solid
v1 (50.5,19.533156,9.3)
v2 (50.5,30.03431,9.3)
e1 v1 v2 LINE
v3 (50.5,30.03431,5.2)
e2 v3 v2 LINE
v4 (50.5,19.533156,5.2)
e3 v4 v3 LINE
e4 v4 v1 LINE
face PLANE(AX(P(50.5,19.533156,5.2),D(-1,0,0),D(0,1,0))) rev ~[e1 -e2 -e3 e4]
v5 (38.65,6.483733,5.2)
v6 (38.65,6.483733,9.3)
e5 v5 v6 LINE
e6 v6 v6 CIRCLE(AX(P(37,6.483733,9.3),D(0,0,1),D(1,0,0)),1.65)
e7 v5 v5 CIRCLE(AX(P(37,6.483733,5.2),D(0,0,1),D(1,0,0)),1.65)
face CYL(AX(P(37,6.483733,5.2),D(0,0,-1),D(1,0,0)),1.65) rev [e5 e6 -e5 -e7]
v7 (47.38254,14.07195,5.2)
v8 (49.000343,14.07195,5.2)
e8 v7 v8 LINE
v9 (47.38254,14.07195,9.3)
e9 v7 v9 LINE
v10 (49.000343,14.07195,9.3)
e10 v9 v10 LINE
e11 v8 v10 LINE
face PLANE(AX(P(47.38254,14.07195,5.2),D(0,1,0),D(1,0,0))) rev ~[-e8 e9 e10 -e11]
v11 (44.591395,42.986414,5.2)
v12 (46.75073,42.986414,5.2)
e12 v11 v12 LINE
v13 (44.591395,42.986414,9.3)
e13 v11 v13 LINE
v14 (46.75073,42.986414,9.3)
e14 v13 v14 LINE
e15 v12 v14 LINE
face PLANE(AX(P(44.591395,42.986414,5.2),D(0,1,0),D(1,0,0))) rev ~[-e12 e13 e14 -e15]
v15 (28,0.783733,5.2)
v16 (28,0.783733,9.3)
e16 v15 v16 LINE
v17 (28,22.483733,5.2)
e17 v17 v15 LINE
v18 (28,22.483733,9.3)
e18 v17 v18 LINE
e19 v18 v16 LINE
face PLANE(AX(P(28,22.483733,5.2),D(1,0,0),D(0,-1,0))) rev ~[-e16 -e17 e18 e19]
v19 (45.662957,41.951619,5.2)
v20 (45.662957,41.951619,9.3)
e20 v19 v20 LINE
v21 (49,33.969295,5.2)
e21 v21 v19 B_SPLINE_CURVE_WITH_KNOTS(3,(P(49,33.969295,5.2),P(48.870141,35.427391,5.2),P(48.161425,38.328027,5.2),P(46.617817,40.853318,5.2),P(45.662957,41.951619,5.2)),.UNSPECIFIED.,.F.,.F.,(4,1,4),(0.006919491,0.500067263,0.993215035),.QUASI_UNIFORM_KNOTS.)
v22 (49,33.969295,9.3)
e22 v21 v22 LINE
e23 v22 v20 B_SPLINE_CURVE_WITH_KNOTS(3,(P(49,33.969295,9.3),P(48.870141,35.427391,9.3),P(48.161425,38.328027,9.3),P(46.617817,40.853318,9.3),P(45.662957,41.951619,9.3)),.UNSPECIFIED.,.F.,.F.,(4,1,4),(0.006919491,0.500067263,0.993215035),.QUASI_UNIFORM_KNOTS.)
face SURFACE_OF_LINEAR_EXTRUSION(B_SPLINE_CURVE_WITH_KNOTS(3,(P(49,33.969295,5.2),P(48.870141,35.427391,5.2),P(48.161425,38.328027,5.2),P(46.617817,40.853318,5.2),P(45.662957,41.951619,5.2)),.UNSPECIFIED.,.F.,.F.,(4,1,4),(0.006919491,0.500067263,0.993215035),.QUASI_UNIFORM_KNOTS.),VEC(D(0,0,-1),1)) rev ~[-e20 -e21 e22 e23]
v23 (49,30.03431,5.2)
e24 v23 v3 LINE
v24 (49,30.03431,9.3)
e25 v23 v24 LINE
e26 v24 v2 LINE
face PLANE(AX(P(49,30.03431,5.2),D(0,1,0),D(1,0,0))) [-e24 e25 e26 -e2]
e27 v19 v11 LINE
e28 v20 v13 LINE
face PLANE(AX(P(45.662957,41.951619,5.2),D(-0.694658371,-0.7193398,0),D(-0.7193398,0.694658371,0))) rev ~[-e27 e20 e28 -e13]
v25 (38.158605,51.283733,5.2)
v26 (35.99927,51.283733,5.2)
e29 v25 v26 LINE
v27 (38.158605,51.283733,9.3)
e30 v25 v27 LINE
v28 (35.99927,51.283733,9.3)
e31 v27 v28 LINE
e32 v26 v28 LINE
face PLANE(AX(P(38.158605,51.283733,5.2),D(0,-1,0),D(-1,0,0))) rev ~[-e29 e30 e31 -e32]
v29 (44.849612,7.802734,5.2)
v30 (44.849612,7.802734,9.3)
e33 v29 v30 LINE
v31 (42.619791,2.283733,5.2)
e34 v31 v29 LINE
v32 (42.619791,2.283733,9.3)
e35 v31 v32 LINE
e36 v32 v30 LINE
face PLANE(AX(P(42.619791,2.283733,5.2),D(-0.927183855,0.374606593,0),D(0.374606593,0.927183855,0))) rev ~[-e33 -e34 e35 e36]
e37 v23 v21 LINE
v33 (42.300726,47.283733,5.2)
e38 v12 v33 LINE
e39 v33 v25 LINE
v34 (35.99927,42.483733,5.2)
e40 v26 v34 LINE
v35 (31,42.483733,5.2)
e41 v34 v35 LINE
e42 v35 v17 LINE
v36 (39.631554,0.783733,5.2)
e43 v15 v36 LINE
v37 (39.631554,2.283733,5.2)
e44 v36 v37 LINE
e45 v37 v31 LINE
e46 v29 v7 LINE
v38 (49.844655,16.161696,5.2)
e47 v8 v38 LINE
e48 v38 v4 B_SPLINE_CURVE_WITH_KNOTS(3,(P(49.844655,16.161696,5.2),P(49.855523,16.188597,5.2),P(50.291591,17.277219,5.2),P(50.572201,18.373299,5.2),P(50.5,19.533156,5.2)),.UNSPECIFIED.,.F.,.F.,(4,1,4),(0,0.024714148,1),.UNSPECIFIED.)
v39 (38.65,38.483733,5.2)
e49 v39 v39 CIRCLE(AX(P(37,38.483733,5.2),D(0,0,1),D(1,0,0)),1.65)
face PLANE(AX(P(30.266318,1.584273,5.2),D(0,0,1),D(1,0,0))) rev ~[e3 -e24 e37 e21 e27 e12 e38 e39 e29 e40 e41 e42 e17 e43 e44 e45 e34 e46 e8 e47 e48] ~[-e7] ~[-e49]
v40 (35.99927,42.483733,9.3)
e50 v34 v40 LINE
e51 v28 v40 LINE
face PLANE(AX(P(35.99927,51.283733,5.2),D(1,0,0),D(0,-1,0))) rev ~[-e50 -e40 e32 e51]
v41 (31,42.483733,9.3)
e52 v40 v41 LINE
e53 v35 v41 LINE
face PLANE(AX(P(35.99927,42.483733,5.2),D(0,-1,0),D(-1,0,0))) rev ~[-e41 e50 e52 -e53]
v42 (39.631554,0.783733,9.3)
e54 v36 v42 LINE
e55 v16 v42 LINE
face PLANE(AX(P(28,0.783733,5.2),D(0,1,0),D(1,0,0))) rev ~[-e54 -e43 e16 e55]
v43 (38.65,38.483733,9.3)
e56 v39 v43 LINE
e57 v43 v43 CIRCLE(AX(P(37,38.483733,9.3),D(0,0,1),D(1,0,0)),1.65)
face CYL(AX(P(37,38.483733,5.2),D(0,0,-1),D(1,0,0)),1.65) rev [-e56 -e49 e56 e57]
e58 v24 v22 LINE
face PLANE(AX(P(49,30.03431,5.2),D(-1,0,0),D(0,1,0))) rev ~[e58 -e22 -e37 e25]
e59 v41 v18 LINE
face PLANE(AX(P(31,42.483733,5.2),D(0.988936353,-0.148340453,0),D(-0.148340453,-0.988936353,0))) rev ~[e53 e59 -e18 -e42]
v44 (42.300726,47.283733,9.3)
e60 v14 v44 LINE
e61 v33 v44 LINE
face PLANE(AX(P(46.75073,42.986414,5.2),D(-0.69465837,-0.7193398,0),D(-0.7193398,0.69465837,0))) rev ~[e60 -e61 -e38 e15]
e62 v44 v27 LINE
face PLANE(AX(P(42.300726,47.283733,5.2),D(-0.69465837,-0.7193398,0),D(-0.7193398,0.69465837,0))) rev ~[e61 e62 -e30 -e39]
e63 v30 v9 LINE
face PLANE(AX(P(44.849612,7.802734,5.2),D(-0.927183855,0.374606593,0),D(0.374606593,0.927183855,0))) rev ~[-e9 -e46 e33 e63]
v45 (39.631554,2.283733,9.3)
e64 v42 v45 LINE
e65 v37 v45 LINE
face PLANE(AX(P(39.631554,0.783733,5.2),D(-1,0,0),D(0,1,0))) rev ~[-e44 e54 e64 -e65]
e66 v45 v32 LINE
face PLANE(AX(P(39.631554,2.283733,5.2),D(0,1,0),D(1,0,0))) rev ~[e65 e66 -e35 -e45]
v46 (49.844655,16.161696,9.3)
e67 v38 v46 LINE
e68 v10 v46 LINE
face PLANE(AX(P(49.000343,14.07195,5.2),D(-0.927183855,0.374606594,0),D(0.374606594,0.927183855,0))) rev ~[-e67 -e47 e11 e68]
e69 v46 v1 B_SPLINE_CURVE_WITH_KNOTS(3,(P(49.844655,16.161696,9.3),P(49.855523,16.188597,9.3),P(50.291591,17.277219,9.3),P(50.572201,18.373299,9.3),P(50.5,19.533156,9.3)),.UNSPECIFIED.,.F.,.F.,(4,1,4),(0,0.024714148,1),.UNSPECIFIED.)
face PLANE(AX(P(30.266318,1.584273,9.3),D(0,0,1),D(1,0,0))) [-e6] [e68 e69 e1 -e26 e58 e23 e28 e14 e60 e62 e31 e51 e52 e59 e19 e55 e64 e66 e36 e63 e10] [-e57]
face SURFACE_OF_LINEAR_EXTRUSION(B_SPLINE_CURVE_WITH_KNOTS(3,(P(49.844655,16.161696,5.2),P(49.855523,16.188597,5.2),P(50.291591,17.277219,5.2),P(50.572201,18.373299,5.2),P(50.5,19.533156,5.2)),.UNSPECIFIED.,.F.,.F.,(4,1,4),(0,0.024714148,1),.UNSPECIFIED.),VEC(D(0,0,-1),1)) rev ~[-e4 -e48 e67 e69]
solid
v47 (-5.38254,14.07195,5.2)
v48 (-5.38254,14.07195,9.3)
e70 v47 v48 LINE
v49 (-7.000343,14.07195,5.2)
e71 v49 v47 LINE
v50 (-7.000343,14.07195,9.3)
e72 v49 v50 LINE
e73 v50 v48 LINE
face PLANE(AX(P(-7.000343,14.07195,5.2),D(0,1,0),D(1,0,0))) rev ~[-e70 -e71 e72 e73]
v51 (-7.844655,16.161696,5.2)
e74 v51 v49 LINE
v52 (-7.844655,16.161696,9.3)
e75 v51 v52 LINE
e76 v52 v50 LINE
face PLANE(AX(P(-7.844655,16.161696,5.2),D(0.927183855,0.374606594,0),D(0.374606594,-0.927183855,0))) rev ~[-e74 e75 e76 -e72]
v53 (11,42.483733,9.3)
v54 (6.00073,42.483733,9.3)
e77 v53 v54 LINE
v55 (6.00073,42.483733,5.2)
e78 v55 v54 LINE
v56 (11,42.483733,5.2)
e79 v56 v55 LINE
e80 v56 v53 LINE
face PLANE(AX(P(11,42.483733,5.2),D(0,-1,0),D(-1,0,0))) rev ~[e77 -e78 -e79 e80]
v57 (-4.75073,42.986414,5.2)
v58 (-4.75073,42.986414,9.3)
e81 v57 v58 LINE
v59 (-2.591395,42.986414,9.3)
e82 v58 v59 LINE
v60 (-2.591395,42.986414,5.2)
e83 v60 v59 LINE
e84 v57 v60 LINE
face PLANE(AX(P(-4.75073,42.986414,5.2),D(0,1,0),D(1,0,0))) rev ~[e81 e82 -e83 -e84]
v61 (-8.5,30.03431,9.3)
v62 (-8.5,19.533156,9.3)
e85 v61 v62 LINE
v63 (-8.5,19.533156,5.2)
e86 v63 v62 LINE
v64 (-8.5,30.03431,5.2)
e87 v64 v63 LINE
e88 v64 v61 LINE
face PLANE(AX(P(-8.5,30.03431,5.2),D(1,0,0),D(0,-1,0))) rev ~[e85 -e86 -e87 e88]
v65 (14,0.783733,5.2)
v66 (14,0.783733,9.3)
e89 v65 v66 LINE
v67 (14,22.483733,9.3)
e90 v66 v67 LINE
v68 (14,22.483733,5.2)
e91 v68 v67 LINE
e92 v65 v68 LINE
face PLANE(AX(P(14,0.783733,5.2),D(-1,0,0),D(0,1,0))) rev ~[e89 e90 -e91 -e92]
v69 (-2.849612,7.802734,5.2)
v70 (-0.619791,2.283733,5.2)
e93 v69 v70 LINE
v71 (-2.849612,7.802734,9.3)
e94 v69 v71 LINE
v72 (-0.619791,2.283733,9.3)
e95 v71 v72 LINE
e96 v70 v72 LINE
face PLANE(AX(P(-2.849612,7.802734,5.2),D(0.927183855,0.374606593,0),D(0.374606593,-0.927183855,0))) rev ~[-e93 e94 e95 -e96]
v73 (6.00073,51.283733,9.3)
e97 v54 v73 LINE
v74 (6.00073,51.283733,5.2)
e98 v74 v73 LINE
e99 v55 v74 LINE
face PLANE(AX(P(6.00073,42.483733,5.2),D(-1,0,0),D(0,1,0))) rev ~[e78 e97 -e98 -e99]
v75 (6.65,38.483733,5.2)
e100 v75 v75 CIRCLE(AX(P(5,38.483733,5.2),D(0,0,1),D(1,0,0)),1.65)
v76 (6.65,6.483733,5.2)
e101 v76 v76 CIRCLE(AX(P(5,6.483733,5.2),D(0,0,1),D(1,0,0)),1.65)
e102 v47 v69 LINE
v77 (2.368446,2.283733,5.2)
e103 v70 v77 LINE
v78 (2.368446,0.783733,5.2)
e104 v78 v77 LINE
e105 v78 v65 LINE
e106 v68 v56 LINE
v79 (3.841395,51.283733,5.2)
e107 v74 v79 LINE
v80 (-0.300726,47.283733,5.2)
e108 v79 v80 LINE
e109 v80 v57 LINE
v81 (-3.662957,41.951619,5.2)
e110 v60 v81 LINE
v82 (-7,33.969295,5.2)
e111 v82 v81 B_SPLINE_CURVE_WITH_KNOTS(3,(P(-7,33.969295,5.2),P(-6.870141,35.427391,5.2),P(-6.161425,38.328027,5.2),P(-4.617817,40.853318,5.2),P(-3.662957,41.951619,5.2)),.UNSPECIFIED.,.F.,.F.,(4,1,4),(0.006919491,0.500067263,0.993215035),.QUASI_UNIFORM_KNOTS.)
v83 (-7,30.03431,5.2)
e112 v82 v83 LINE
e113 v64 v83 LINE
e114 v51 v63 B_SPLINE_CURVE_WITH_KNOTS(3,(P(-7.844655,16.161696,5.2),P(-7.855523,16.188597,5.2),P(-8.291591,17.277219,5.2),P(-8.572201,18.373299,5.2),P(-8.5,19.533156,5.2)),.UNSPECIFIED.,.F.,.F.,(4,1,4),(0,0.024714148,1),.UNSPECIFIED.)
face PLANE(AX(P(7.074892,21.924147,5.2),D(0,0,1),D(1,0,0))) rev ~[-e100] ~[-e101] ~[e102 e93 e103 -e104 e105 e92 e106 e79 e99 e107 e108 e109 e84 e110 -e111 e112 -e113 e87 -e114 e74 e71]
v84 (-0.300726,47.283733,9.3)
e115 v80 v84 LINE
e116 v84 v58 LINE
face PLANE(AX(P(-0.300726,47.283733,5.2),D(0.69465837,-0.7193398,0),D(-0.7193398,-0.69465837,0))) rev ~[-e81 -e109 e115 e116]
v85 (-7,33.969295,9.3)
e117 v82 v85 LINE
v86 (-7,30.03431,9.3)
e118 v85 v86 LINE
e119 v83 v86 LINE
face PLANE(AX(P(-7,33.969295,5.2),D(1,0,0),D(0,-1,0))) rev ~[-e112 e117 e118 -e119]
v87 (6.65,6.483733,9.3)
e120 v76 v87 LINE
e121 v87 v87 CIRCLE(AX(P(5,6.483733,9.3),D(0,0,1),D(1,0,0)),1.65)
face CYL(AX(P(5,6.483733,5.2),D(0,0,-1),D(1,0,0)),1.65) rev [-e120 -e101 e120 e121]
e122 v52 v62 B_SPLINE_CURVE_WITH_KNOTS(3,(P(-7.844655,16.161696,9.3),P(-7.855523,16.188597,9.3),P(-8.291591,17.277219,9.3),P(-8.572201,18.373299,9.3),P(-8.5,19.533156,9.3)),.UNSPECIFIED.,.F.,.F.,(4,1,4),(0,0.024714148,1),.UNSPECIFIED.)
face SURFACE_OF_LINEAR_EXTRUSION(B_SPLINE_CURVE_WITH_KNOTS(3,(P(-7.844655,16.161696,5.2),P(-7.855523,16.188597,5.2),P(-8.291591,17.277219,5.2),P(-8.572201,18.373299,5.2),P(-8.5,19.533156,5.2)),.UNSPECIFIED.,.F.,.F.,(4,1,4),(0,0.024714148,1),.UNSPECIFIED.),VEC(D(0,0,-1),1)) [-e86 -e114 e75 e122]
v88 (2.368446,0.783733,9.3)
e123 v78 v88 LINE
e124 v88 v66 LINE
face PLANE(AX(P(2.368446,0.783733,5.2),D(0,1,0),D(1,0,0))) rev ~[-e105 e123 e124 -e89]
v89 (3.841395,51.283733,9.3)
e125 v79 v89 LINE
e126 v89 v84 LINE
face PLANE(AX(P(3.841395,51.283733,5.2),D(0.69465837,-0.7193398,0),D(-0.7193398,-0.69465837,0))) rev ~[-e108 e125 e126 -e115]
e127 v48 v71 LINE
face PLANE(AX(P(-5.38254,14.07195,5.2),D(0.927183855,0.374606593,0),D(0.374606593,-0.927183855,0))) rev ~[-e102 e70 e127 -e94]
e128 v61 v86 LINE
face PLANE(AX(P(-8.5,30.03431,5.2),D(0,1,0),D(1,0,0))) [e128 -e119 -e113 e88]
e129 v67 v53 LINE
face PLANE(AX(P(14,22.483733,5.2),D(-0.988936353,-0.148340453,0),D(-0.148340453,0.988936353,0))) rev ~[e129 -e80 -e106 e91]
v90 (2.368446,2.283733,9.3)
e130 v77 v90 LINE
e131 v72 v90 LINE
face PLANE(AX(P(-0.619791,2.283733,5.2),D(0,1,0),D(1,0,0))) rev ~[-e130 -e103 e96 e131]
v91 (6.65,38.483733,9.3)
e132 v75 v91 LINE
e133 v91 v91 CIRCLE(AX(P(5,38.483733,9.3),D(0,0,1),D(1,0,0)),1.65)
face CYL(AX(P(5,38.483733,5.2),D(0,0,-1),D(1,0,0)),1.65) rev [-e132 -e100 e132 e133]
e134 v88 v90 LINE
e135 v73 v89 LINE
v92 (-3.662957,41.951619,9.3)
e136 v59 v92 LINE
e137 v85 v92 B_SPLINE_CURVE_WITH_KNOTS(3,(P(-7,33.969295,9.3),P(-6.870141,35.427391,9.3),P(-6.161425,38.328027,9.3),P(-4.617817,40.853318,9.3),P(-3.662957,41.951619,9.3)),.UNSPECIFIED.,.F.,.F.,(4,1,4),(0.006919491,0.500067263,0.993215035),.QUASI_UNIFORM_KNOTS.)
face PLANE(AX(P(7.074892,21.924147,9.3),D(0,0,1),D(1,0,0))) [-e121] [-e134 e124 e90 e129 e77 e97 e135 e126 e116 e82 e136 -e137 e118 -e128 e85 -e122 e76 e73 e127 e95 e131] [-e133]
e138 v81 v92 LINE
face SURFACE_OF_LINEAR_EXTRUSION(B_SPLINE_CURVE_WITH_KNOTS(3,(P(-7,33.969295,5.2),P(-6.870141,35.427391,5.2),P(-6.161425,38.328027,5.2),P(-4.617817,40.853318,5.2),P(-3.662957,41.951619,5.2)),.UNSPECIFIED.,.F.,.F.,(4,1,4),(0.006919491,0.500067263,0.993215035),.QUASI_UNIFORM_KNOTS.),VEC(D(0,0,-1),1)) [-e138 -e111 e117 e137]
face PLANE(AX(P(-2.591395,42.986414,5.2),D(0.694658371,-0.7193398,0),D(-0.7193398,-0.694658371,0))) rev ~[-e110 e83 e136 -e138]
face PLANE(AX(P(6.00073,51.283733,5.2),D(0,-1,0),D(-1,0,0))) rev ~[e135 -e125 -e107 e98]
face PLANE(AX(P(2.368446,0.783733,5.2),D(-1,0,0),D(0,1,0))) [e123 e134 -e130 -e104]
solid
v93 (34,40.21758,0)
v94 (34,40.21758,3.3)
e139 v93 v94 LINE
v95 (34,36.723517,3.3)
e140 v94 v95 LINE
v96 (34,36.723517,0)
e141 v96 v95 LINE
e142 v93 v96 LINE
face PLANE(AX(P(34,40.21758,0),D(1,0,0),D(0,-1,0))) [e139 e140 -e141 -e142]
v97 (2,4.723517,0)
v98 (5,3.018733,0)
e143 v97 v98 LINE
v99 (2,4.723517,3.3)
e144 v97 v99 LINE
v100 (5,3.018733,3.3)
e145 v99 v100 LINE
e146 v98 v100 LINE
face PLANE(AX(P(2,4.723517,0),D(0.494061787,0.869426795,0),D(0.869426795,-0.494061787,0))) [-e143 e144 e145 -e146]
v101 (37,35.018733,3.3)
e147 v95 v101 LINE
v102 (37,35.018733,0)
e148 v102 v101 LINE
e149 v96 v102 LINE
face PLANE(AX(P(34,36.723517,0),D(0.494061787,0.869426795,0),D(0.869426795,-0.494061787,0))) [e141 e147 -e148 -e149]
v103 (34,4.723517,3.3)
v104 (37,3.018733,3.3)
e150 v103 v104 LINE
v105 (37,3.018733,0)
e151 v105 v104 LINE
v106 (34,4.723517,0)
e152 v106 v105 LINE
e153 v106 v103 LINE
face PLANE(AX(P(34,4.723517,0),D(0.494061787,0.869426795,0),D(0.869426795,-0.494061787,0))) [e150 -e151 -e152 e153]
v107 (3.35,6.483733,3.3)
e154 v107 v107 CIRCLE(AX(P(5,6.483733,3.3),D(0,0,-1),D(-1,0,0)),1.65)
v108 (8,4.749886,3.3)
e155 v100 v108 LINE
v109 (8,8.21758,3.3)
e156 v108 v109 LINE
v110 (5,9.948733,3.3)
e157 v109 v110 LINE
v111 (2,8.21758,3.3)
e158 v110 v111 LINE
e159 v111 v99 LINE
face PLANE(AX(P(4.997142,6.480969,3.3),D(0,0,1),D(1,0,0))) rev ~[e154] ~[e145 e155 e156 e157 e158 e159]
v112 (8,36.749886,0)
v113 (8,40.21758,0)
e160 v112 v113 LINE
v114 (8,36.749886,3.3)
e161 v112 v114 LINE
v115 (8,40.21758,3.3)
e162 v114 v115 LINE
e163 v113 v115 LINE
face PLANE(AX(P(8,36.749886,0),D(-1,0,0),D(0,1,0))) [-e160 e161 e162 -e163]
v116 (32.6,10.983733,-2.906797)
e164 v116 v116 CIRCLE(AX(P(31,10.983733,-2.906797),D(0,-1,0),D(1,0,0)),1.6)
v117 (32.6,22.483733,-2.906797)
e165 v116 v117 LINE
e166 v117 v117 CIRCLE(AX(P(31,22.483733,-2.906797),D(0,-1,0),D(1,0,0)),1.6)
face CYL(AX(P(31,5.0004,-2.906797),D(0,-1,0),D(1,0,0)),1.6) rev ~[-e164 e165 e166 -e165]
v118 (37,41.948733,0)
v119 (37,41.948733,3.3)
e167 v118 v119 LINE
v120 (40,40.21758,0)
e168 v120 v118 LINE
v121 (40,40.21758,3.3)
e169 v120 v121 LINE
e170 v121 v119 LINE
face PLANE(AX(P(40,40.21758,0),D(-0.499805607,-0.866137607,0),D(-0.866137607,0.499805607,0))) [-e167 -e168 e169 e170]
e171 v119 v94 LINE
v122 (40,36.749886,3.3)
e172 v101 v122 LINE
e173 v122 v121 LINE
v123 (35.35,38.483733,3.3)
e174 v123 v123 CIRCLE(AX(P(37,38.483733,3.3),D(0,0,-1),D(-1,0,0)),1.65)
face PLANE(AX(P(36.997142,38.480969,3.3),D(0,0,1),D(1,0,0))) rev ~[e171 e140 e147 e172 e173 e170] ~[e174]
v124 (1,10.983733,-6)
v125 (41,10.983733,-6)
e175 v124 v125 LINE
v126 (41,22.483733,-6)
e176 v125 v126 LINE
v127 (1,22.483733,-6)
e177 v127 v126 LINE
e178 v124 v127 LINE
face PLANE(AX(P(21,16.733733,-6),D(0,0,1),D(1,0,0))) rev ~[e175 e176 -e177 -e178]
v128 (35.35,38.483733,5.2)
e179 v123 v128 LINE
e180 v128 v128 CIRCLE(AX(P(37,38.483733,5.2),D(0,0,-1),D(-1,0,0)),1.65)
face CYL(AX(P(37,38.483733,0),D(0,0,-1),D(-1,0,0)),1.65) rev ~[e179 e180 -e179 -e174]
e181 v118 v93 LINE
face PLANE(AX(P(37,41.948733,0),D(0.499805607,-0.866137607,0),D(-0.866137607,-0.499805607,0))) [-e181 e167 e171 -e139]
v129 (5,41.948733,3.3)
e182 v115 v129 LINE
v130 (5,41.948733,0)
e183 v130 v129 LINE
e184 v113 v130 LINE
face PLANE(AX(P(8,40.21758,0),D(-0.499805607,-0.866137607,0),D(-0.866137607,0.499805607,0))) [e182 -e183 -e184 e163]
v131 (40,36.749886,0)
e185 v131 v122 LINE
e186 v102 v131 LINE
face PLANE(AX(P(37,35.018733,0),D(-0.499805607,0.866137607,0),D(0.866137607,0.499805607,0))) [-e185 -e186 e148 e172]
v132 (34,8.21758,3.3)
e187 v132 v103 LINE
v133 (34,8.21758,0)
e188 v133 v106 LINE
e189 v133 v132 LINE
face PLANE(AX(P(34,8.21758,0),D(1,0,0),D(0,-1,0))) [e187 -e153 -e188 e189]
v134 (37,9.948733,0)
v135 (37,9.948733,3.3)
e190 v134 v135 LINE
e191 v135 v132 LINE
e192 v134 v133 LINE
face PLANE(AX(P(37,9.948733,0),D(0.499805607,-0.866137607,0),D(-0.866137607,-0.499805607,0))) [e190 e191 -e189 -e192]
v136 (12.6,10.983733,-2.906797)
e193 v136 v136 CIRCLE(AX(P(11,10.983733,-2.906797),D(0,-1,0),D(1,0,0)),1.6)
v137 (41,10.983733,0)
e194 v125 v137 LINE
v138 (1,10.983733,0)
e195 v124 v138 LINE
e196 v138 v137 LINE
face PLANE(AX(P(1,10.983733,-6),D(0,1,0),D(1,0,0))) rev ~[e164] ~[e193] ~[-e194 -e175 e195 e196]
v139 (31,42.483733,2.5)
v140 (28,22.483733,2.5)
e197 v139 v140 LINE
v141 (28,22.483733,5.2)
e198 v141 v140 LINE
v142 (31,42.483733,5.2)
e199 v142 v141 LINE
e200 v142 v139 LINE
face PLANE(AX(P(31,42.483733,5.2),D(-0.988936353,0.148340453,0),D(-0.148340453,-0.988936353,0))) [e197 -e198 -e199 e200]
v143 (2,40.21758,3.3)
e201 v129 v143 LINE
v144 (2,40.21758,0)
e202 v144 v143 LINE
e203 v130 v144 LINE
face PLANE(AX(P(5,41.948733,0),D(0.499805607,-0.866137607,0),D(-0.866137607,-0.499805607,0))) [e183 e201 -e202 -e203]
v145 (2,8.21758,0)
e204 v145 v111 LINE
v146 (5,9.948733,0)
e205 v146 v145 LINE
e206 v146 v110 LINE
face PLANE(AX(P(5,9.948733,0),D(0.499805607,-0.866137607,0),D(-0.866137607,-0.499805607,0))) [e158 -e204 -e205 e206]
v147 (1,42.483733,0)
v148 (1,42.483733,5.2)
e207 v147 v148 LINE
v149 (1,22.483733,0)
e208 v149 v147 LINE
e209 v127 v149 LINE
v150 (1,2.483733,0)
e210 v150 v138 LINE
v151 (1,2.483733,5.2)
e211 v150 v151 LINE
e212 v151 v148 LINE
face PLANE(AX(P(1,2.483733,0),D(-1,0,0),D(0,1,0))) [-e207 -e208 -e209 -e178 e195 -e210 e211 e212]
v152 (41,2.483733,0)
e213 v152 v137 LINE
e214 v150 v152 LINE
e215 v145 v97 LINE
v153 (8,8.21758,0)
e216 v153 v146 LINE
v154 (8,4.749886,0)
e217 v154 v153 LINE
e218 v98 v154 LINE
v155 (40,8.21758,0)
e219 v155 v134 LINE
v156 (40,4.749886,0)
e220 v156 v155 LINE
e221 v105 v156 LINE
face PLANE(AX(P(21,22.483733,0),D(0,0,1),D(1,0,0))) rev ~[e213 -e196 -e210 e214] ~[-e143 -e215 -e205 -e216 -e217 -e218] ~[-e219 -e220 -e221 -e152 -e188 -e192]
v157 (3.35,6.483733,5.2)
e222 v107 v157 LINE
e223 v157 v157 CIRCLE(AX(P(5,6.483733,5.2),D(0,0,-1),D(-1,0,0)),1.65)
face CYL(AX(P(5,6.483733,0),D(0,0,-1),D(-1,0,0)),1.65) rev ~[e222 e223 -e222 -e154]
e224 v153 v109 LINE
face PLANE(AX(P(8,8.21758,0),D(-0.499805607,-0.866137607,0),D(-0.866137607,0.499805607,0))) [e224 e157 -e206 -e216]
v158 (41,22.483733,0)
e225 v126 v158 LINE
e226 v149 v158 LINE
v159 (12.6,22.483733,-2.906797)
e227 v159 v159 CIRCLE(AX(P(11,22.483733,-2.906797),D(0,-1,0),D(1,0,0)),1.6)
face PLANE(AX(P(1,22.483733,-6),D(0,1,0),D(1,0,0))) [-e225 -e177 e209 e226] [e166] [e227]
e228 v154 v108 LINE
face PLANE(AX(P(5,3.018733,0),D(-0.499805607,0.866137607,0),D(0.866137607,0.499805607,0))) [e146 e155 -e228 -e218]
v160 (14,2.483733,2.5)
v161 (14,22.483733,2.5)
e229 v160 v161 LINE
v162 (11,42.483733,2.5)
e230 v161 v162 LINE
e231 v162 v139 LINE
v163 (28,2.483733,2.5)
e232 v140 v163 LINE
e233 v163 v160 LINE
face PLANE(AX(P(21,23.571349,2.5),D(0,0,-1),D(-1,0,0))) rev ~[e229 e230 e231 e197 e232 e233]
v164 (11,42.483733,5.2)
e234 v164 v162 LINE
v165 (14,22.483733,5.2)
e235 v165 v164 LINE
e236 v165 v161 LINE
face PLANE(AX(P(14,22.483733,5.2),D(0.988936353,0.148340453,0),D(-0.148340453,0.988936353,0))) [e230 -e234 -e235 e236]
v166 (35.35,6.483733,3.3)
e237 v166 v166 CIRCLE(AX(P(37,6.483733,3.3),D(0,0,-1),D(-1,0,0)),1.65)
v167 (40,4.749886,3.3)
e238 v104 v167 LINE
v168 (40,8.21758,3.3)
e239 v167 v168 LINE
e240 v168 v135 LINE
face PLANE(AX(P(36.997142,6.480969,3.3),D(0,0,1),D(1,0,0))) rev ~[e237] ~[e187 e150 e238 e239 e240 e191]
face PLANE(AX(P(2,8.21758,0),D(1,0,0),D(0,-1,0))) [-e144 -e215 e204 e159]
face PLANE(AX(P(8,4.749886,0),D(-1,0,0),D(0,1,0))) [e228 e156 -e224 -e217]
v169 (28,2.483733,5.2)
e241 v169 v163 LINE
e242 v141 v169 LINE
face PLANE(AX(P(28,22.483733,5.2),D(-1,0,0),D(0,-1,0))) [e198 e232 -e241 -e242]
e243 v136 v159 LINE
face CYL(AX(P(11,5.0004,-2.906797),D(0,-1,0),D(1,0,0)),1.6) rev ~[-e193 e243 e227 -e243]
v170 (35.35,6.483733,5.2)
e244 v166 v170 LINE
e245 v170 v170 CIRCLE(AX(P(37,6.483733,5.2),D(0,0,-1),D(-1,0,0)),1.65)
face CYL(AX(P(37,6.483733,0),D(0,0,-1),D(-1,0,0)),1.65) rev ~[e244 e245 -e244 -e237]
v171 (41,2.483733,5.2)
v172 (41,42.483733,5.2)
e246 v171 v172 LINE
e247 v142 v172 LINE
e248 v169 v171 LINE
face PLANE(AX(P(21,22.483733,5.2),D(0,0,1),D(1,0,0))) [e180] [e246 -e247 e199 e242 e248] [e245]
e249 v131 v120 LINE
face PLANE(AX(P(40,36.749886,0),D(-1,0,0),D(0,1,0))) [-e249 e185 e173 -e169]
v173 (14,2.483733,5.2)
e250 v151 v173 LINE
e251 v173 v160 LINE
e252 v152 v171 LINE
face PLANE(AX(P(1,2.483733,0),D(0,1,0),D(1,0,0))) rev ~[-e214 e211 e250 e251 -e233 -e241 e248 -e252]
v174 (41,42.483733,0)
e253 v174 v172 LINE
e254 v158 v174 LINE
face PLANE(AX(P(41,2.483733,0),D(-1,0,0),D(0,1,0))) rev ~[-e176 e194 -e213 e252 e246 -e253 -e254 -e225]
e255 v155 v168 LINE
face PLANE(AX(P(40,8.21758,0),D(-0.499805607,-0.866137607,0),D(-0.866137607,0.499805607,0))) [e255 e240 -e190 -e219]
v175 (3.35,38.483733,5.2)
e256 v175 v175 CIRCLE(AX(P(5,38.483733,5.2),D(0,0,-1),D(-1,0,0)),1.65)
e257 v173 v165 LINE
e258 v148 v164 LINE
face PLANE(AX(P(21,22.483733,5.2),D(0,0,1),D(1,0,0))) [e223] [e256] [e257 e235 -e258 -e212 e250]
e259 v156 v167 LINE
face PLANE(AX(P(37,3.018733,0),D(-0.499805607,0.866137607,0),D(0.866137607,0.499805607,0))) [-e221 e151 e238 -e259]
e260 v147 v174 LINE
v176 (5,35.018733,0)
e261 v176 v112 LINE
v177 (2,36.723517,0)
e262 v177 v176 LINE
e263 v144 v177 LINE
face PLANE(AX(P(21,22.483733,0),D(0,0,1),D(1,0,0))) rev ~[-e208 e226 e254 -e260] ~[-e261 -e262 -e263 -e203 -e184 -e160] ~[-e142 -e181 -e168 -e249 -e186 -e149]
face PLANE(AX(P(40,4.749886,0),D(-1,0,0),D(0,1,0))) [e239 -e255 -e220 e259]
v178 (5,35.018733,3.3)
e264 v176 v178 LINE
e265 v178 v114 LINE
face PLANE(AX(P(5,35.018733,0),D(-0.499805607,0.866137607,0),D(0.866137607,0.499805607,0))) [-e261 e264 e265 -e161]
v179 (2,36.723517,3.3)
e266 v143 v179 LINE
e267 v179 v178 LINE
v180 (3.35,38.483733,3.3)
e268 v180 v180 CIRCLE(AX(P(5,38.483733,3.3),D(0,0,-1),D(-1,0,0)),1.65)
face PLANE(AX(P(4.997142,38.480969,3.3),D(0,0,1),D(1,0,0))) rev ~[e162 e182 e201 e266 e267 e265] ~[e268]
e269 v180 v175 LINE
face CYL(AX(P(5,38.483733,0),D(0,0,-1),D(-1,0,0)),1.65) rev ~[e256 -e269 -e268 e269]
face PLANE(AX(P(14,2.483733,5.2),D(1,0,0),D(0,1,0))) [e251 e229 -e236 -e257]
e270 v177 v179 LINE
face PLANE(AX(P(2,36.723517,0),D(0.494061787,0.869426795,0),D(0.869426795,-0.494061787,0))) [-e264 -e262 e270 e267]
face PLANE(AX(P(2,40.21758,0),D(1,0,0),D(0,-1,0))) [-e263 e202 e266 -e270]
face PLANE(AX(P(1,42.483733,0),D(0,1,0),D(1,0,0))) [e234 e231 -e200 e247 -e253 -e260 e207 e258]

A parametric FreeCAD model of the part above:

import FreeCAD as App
import Part
import Sketcher

doc = App.newDocument("Part")
body = doc.addObject("PartDesign::Body", "Body")

# Sketch on XY plane
sketch1 = body.newObject("Sketcher::SketchObject", "Sketch")
sketch1.AttachmentSupport = (doc.getObject("XY_Plane"), [""])
sketch1.MapMode = "FlatFace"
sketch1.addGeometry(Part.LineSegment(App.Vector(1, 42, 0), App.Vector(1, 2, 0)), False)
sketch1.addGeometry(Part.LineSegment(App.Vector(1, 2, 0), App.Vector(41, 2, 0)), False)
sketch1.addGeometry(Part.LineSegment(App.Vector(41, 2, 0), App.Vector(41, 42, 0)), False)
sketch1.addGeometry(Part.LineSegment(App.Vector(41, 42, 0), App.Vector(1, 42, 0)), False)
sketch1.addConstraint(Sketcher.Constraint("Coincident", 0, 2, 1, 1))
sketch1.addConstraint(Sketcher.Constraint("Coincident", 1, 2, 2, 1))
sketch1.addConstraint(Sketcher.Constraint("Coincident", 2, 2, 3, 1))
sketch1.addConstraint(Sketcher.Constraint("Coincident", 3, 2, 0, 1))
sketch1.addConstraint(Sketcher.Constraint("Vertical", 0))
sketch1.addConstraint(Sketcher.Constraint("Horizontal", 1))
sketch1.addConstraint(Sketcher.Constraint("Vertical", 2))
sketch1.addConstraint(Sketcher.Constraint("Horizontal", 3))
sketch1.addConstraint(Sketcher.Constraint("Equal", 3, 0))
sketch1.addConstraint(Sketcher.Constraint("DistanceX", 1, 1, 1, 2, 40.0))
sketch1.addConstraint(Sketcher.Constraint("DistanceX", -1, 1, 0, 2, 1.0))
sketch1.addConstraint(Sketcher.Constraint("DistanceY", -1, 1, 0, 2, 2.483733))
pad1 = body.newObject("PartDesign::Pad", "Pad")
pad1.Profile = sketch1
pad1.Length = 5.2

# Sketch on XY plane
sketch2 = body.newObject("Sketcher::SketchObject", "Sketch001")
sketch2.AttachmentSupport = (doc.getObject("XY_Plane"), [""])
sketch2.MapMode = "FlatFace"
sketch2.AttachmentOffset = App.Placement(App.Vector(0, 0, -6), App.Rotation())
sketch2.addGeometry(Part.LineSegment(App.Vector(1, 22, 0), App.Vector(1, 11, 0)), False)
sketch2.addGeometry(Part.LineSegment(App.Vector(1, 11, 0), App.Vector(41, 11, 0)), False)
sketch2.addGeometry(Part.LineSegment(App.Vector(41, 11, 0), App.Vector(41, 22, 0)), False)
sketch2.addGeometry(Part.LineSegment(App.Vector(41, 22, 0), App.Vector(1, 22, 0)), False)
sketch2.addConstraint(Sketcher.Constraint("Coincident", 0, 2, 1, 1))
sketch2.addConstraint(Sketcher.Constraint("Coincident", 1, 2, 2, 1))
sketch2.addConstraint(Sketcher.Constraint("Coincident", 2, 2, 3, 1))
sketch2.addConstraint(Sketcher.Constraint("Coincident", 3, 2, 0, 1))
sketch2.addConstraint(Sketcher.Constraint("Vertical", 0))
sketch2.addConstraint(Sketcher.Constraint("Horizontal", 1))
sketch2.addConstraint(Sketcher.Constraint("Vertical", 2))
sketch2.addConstraint(Sketcher.Constraint("Horizontal", 3))
sketch2.addConstraint(Sketcher.Constraint("DistanceX", 1, 1, 1, 2, 40.0))
sketch2.addConstraint(Sketcher.Constraint("DistanceY", 0, 2, 0, 1, 11.5))
sketch2.addConstraint(Sketcher.Constraint("DistanceX", -1, 1, 0, 2, 1.0))
sketch2.addConstraint(Sketcher.Constraint("DistanceY", -1, 1, 0, 2, 10.983733))
pad2 = body.newObject("PartDesign::Pad", "Pad001")
pad2.Profile = sketch2
pad2.Length = 6

# Sketch on XZ plane
sketch3 = body.newObject("Sketcher::SketchObject", "Sketch002")
sketch3.AttachmentSupport = (doc.getObject("XZ_Plane"), [""])
sketch3.MapMode = "FlatFace"
sketch3.AttachmentOffset = App.Placement(App.Vector(0, 0, -5.0004), App.Rotation())
sketch3.addGeometry(Part.Circle(App.Vector(11, -2.9, 0), App.Vector(0, 0, 1), 1.6), False)
sketch3.addGeometry(Part.Circle(App.Vector(31, -2.9, 0), App.Vector(0, 0, 1), 1.6), False)
sketch3.addConstraint(Sketcher.Constraint("Equal", 0, 1))
sketch3.addConstraint(Sketcher.Constraint("Horizontal", 0, 3, 1, 3))
sketch3.addConstraint(Sketcher.Constraint("Diameter", 0, 3.2))
sketch3.addConstraint(Sketcher.Constraint("DistanceX", -1, 1, 0, 3, 11.0))
sketch3.addConstraint(Sketcher.Constraint("DistanceX", -1, 1, 1, 3, 31.0))
sketch3.addConstraint(Sketcher.Constraint("DistanceY", 0, 3, -1, 1, 2.906797))
pocket1 = body.newObject("PartDesign::Pocket", "Pocket")
pocket1.Profile = sketch3
pocket1.Length = 37.483333

# Sketch on XY plane
sketch4 = body.newObject("Sketcher::SketchObject", "Sketch003")
sketch4.AttachmentSupport = (doc.getObject("XY_Plane"), [""])
sketch4.MapMode = "FlatFace"
sketch4.addGeometry(Part.Circle(App.Vector(5, 6.5, 0), App.Vector(0, 0, 1), 1.6), False)
sketch4.addConstraint(Sketcher.Constraint("Diameter", 0, 3.3))
sketch4.addConstraint(Sketcher.Constraint("DistanceX", -1, 1, 0, 3, 5.0))
sketch4.addConstraint(Sketcher.Constraint("DistanceY", -1, 1, 0, 3, 6.483733))
pocket2 = body.newObject("PartDesign::Pocket", "Pocket001")
pocket2.Profile = sketch4
pocket2.Length = 5.2
pocket2.Reversed = True

# Sketch on XY plane
sketch5 = body.newObject("Sketcher::SketchObject", "Sketch004")
sketch5.AttachmentSupport = (doc.getObject("XY_Plane"), [""])
sketch5.MapMode = "FlatFace"
sketch5.addGeometry(Part.LineSegment(App.Vector(2, 4.7, 0), App.Vector(5, 3, 0)), False)
sketch5.addGeometry(Part.LineSegment(App.Vector(5, 3, 0), App.Vector(8, 4.7, 0)), False)
sketch5.addGeometry(Part.LineSegment(App.Vector(8, 4.7, 0), App.Vector(8, 8.2, 0)), False)
sketch5.addGeometry(Part.LineSegment(App.Vector(8, 8.2, 0), App.Vector(5, 9.9, 0)), False)
sketch5.addGeometry(Part.LineSegment(App.Vector(5, 9.9, 0), App.Vector(2, 8.2, 0)), False)
sketch5.addGeometry(Part.LineSegment(App.Vector(2, 8.2, 0), App.Vector(2, 4.7, 0)), False)
sketch5.addConstraint(Sketcher.Constraint("Coincident", 0, 2, 1, 1))
sketch5.addConstraint(Sketcher.Constraint("Coincident", 1, 2, 2, 1))
sketch5.addConstraint(Sketcher.Constraint("Coincident", 2, 2, 3, 1))
sketch5.addConstraint(Sketcher.Constraint("Coincident", 3, 2, 4, 1))
sketch5.addConstraint(Sketcher.Constraint("Coincident", 4, 2, 5, 1))
sketch5.addConstraint(Sketcher.Constraint("Coincident", 5, 2, 0, 1))
sketch5.addConstraint(Sketcher.Constraint("Vertical", 2))
sketch5.addConstraint(Sketcher.Constraint("Vertical", 5))
sketch5.addConstraint(Sketcher.Constraint("Parallel", 1, 4))
sketch5.addConstraint(Sketcher.Constraint("Horizontal", 2, 2, 4, 2))
sketch5.addConstraint(Sketcher.Constraint("Vertical", 0, 2, 3, 2))
sketch5.addConstraint(Sketcher.Constraint("Equal", 1, 3))
sketch5.addConstraint(Sketcher.Constraint("DistanceX", -1, 1, 0, 2, 5.0))
sketch5.addConstraint(Sketcher.Constraint("DistanceX", -1, 1, 1, 2, 8.0))
sketch5.addConstraint(Sketcher.Constraint("DistanceY", 0, 2, 3, 2, 6.93))
sketch5.addConstraint(Sketcher.Constraint("Distance", 0, 3.450549))
sketch5.addConstraint(Sketcher.Constraint("DistanceY", 2, 1, 2, 2, 3.467694))
sketch5.addConstraint(Sketcher.Constraint("DistanceY", -1, 1, 2, 2, 8.21758))
pocket3 = body.newObject("PartDesign::Pocket", "Pocket002")
pocket3.Profile = sketch5
pocket3.Length = 3.3
pocket3.Reversed = True
doc.recompute()

linearpattern = body.newObject("PartDesign::LinearPattern", "LinearPattern")
linearpattern.Originals = [pocket2, pocket3]
linearpattern.Direction = (doc.getObject("X_Axis"), [""])
linearpattern.Mode = "offset"
linearpattern.Offset = 32
linearpattern.Occurrences = 2
body.Tip = linearpattern
doc.recompute()

linearpattern2 = body.newObject("PartDesign::LinearPattern", "LinearPattern001")
linearpattern2.Originals = [pocket2, pocket3]
linearpattern2.Direction = (doc.getObject("Y_Axis"), [""])
linearpattern2.Mode = "offset"
linearpattern2.Offset = 32
linearpattern2.Occurrences = 2
body.Tip = linearpattern2

# Sketch on XY plane
sketch6 = body.newObject("Sketcher::SketchObject", "Sketch005")
sketch6.AttachmentSupport = (doc.getObject("XY_Plane"), [""])
sketch6.MapMode = "FlatFace"
sketch6.addGeometry(Part.Circle(App.Vector(37, 38.5, 0), App.Vector(0, 0, 1), 1.6), False)
sketch6.addConstraint(Sketcher.Constraint("Diameter", 0, 3.3))
sketch6.addConstraint(Sketcher.Constraint("DistanceX", -1, 1, 0, 3, 37.0))
sketch6.addConstraint(Sketcher.Constraint("DistanceY", -1, 1, 0, 3, 38.483733))
pocket4 = body.newObject("PartDesign::Pocket", "Pocket003")
pocket4.Profile = sketch6
pocket4.Length = 5.2
pocket4.Reversed = True

# Sketch on XY plane
sketch7 = body.newObject("Sketcher::SketchObject", "Sketch006")
sketch7.AttachmentSupport = (doc.getObject("XY_Plane"), [""])
sketch7.MapMode = "FlatFace"
sketch7.addGeometry(Part.LineSegment(App.Vector(34, 36.7, 0), App.Vector(37, 35, 0)), False)
sketch7.addGeometry(Part.LineSegment(App.Vector(37, 35, 0), App.Vector(40, 36.7, 0)), False)
sketch7.addGeometry(Part.LineSegment(App.Vector(40, 36.7, 0), App.Vector(40, 40.2, 0)), False)
sketch7.addGeometry(Part.LineSegment(App.Vector(40, 40.2, 0), App.Vector(37, 41.9, 0)), False)
sketch7.addGeometry(Part.LineSegment(App.Vector(37, 41.9, 0), App.Vector(34, 40.2, 0)), False)
sketch7.addGeometry(Part.LineSegment(App.Vector(34, 40.2, 0), App.Vector(34, 36.7, 0)), False)
sketch7.addConstraint(Sketcher.Constraint("Coincident", 0, 2, 1, 1))
sketch7.addConstraint(Sketcher.Constraint("Coincident", 1, 2, 2, 1))
sketch7.addConstraint(Sketcher.Constraint("Coincident", 2, 2, 3, 1))
sketch7.addConstraint(Sketcher.Constraint("Coincident", 3, 2, 4, 1))
sketch7.addConstraint(Sketcher.Constraint("Coincident", 4, 2, 5, 1))
sketch7.addConstraint(Sketcher.Constraint("Coincident", 5, 2, 0, 1))
sketch7.addConstraint(Sketcher.Constraint("Vertical", 2))
sketch7.addConstraint(Sketcher.Constraint("Vertical", 5))
sketch7.addConstraint(Sketcher.Constraint("Parallel", 1, 4))
sketch7.addConstraint(Sketcher.Constraint("Horizontal", 2, 2, 4, 2))
sketch7.addConstraint(Sketcher.Constraint("Vertical", 0, 2, 3, 2))
sketch7.addConstraint(Sketcher.Constraint("Equal", 1, 3))
sketch7.addConstraint(Sketcher.Constraint("DistanceX", -1, 1, 0, 2, 37.0))
sketch7.addConstraint(Sketcher.Constraint("DistanceX", -1, 1, 1, 2, 40.0))
sketch7.addConstraint(Sketcher.Constraint("DistanceY", 0, 2, 3, 2, 6.93))
sketch7.addConstraint(Sketcher.Constraint("Distance", 0, 3.450549))
sketch7.addConstraint(Sketcher.Constraint("DistanceY", 2, 1, 2, 2, 3.467694))
sketch7.addConstraint(Sketcher.Constraint("DistanceY", -1, 1, 2, 2, 40.21758))
pocket5 = body.newObject("PartDesign::Pocket", "Pocket004")
pocket5.Profile = sketch7
pocket5.Length = 3.3
pocket5.Reversed = True

# Sketch on XY plane
sketch8 = body.newObject("Sketcher::SketchObject", "Sketch007")
sketch8.AttachmentSupport = (doc.getObject("XY_Plane"), [""])
sketch8.MapMode = "FlatFace"
sketch8.AttachmentOffset = App.Placement(App.Vector(0, 0, 5.2), App.Rotation())
sketch8.addGeometry(Part.LineSegment(App.Vector(14, 22, 0), App.Vector(14, 2, 0)), False)
sketch8.addGeometry(Part.LineSegment(App.Vector(14, 2, 0), App.Vector(28, 2, 0)), False)
sketch8.addGeometry(Part.LineSegment(App.Vector(28, 2, 0), App.Vector(28, 22, 0)), False)
sketch8.addGeometry(Part.LineSegment(App.Vector(28, 22, 0), App.Vector(31, 42, 0)), False)
sketch8.addGeometry(Part.LineSegment(App.Vector(31, 42, 0), App.Vector(11, 42, 0)), False)
sketch8.addGeometry(Part.LineSegment(App.Vector(11, 42, 0), App.Vector(14, 22, 0)), False)
sketch8.addConstraint(Sketcher.Constraint("Coincident", 0, 2, 1, 1))
sketch8.addConstraint(Sketcher.Constraint("Coincident", 1, 2, 2, 1))
sketch8.addConstraint(Sketcher.Constraint("Coincident", 2, 2, 3, 1))
sketch8.addConstraint(Sketcher.Constraint("Coincident", 3, 2, 4, 1))
sketch8.addConstraint(Sketcher.Constraint("Coincident", 4, 2, 5, 1))
sketch8.addConstraint(Sketcher.Constraint("Coincident", 5, 2, 0, 1))
sketch8.addConstraint(Sketcher.Constraint("Vertical", 0))
sketch8.addConstraint(Sketcher.Constraint("Horizontal", 1))
sketch8.addConstraint(Sketcher.Constraint("Vertical", 2))
sketch8.addConstraint(Sketcher.Constraint("Horizontal", 4))
sketch8.addConstraint(Sketcher.Constraint("Horizontal", 2, 2, 5, 2))
sketch8.addConstraint(Sketcher.Constraint("Equal", 4, 0))
sketch8.addConstraint(Sketcher.Constraint("Equal", 3, 5))
sketch8.addConstraint(Sketcher.Constraint("DistanceX", 1, 1, 1, 2, 14.0))
sketch8.addConstraint(Sketcher.Constraint("DistanceX", 4, 2, 4, 1, 20.0))
sketch8.addConstraint(Sketcher.Constraint("DistanceX", -1, 1, 0, 2, 14.0))
sketch8.addConstraint(Sketcher.Constraint("DistanceY", 2, 2, 3, 2, 20.0))
sketch8.addConstraint(Sketcher.Constraint("DistanceY", -1, 1, 0, 2, 2.483733))
pocket6 = body.newObject("PartDesign::Pocket", "Pocket005")
pocket6.Profile = sketch8
pocket6.Length = 2.7
body2 = doc.addObject("PartDesign::Body", "Body001")
body2.AllowCompound = True

# Sketch on XY plane
sketch9 = body2.newObject("Sketcher::SketchObject", "Sketch008")
sketch9.AttachmentSupport = (doc.getObject("XY_Plane001"), [""])
sketch9.MapMode = "FlatFace"
sketch9.AttachmentOffset = App.Placement(App.Vector(0, 0, 5.2), App.Rotation())
sketch9.addGeometry(Part.LineSegment(App.Vector(14, 22.483733, 0), App.Vector(11, 42.483733, 0)), False)
sketch9.addGeometry(Part.LineSegment(App.Vector(11, 42.483733, 0), App.Vector(6.00073, 42.483733, 0)), False)
sketch9.addGeometry(Part.LineSegment(App.Vector(6.00073, 42.483733, 0), App.Vector(6.00073, 51.283733, 0)), False)
sketch9.addGeometry(Part.LineSegment(App.Vector(6.00073, 51.283733, 0), App.Vector(3.841395, 51.283733, 0)), False)
sketch9.addGeometry(Part.LineSegment(App.Vector(3.841395, 51.283733, 0), App.Vector(-0.300726, 47.283733, 0)), False)
sketch9.addGeometry(Part.LineSegment(App.Vector(-0.300726, 47.283733, 0), App.Vector(-4.75073, 42.986414, 0)), False)
sketch9.addGeometry(Part.LineSegment(App.Vector(-4.75073, 42.986414, 0), App.Vector(-2.591395, 42.986414, 0)), False)
sketch9.addGeometry(Part.LineSegment(App.Vector(-2.591395, 42.986414, 0), App.Vector(-3.662957, 41.951619, 0)), False)
sketch9.addGeometry(Part.BSplineCurve([App.Vector(-7, 33.969295, 0), App.Vector(-6.870141, 35.427391, 0), App.Vector(-6.161425, 38.328027, 0), App.Vector(-4.617817, 40.853318, 0), App.Vector(-3.662957, 41.951619, 0)], [4, 1, 4], [0.006919491, 0.500067263, 0.993215035], False, 3, [1, 1, 1, 1, 1], False), False)
sketch9.addGeometry(Part.LineSegment(App.Vector(-7, 33.969295, 0), App.Vector(-7, 30.03431, 0)), False)
sketch9.addGeometry(Part.LineSegment(App.Vector(-7, 30.03431, 0), App.Vector(-8.5, 30.03431, 0)), False)
sketch9.addGeometry(Part.LineSegment(App.Vector(-8.5, 30.03431, 0), App.Vector(-8.5, 19.533156, 0)), False)
sketch9.addGeometry(Part.BSplineCurve([App.Vector(-7.844655, 16.161696, 0), App.Vector(-7.855523, 16.188597, 0), App.Vector(-8.291591, 17.277219, 0), App.Vector(-8.572201, 18.373299, 0), App.Vector(-8.5, 19.533156, 0)], [4, 1, 4], [0, 0.024714148, 1], False, 3, [1, 1, 1, 1, 1], False), False)
sketch9.addGeometry(Part.LineSegment(App.Vector(-7.844655, 16.161696, 0), App.Vector(-7.000343, 14.07195, 0)), False)
sketch9.addGeometry(Part.LineSegment(App.Vector(-7.000343, 14.07195, 0), App.Vector(-5.38254, 14.07195, 0)), False)
sketch9.addGeometry(Part.LineSegment(App.Vector(-5.38254, 14.07195, 0), App.Vector(-2.849612, 7.802734, 0)), False)
sketch9.addGeometry(Part.LineSegment(App.Vector(-2.849612, 7.802734, 0), App.Vector(-0.619791, 2.283733, 0)), False)
sketch9.addGeometry(Part.LineSegment(App.Vector(-0.619791, 2.283733, 0), App.Vector(2.368446, 2.283733, 0)), False)
sketch9.addGeometry(Part.LineSegment(App.Vector(2.368446, 2.283733, 0), App.Vector(2.368446, 0.783733, 0)), False)
sketch9.addGeometry(Part.LineSegment(App.Vector(2.368446, 0.783733, 0), App.Vector(14, 0.783733, 0)), False)
sketch9.addGeometry(Part.LineSegment(App.Vector(14, 0.783733, 0), App.Vector(14, 22.483733, 0)), False)
sketch9.addGeometry(Part.Circle(App.Vector(5, 6.483733, 0), App.Vector(0, 0, 1), 1.65), False)
sketch9.addGeometry(Part.Circle(App.Vector(5, 38.483733, 0), App.Vector(0, 0, 1), 1.65), False)
sketch9.addGeometry(Part.LineSegment(App.Vector(28, 0.783733, 0), App.Vector(39.631554, 0.783733, 0)), False)
sketch9.addGeometry(Part.LineSegment(App.Vector(39.631554, 0.783733, 0), App.Vector(39.631554, 2.283733, 0)), False)
sketch9.addGeometry(Part.LineSegment(App.Vector(39.631554, 2.283733, 0), App.Vector(42.619791, 2.283733, 0)), False)
sketch9.addGeometry(Part.LineSegment(App.Vector(42.619791, 2.283733, 0), App.Vector(44.849612, 7.802734, 0)), False)
sketch9.addGeometry(Part.LineSegment(App.Vector(44.849612, 7.802734, 0), App.Vector(47.38254, 14.07195, 0)), False)
sketch9.addGeometry(Part.LineSegment(App.Vector(47.38254, 14.07195, 0), App.Vector(49.000343, 14.07195, 0)), False)
sketch9.addGeometry(Part.LineSegment(App.Vector(49.000343, 14.07195, 0), App.Vector(49.844655, 16.161696, 0)), False)
sketch9.addGeometry(Part.BSplineCurve([App.Vector(49.844655, 16.161696, 0), App.Vector(49.855523, 16.188597, 0), App.Vector(50.291591, 17.277219, 0), App.Vector(50.572201, 18.373299, 0), App.Vector(50.5, 19.533156, 0)], [4, 1, 4], [0, 0.024714148, 1], False, 3, [1, 1, 1, 1, 1], False), False)
sketch9.addGeometry(Part.LineSegment(App.Vector(50.5, 19.533156, 0), App.Vector(50.5, 30.03431, 0)), False)
sketch9.addGeometry(Part.LineSegment(App.Vector(50.5, 30.03431, 0), App.Vector(49, 30.03431, 0)), False)
sketch9.addGeometry(Part.LineSegment(App.Vector(49, 30.03431, 0), App.Vector(49, 33.969295, 0)), False)
sketch9.addGeometry(Part.BSplineCurve([App.Vector(49, 33.969295, 0), App.Vector(48.870141, 35.427391, 0), App.Vector(48.161425, 38.328027, 0), App.Vector(46.617817, 40.853318, 0), App.Vector(45.662957, 41.951619, 0)], [4, 1, 4], [0.006919491, 0.500067263, 0.993215035], False, 3, [1, 1, 1, 1, 1], False), False)
sketch9.addGeometry(Part.LineSegment(App.Vector(45.662957, 41.951619, 0), App.Vector(44.591395, 42.986414, 0)), False)
sketch9.addGeometry(Part.LineSegment(App.Vector(44.591395, 42.986414, 0), App.Vector(46.75073, 42.986414, 0)), False)
sketch9.addGeometry(Part.LineSegment(App.Vector(46.75073, 42.986414, 0), App.Vector(42.300726, 47.283733, 0)), False)
sketch9.addGeometry(Part.LineSegment(App.Vector(42.300726, 47.283733, 0), App.Vector(38.158605, 51.283733, 0)), False)
sketch9.addGeometry(Part.LineSegment(App.Vector(38.158605, 51.283733, 0), App.Vector(35.99927, 51.283733, 0)), False)
sketch9.addGeometry(Part.LineSegment(App.Vector(35.99927, 51.283733, 0), App.Vector(35.99927, 42.483733, 0)), False)
sketch9.addGeometry(Part.LineSegment(App.Vector(35.99927, 42.483733, 0), App.Vector(31, 42.483733, 0)), False)
sketch9.addGeometry(Part.LineSegment(App.Vector(31, 42.483733, 0), App.Vector(28, 22.483733, 0)), False)
sketch9.addGeometry(Part.LineSegment(App.Vector(28, 22.483733, 0), App.Vector(28, 0.783733, 0)), False)
sketch9.addGeometry(Part.Circle(App.Vector(37, 6.483733, 0), App.Vector(0, 0, 1), 1.65), False)
sketch9.addGeometry(Part.Circle(App.Vector(37, 38.483733, 0), App.Vector(0, 0, 1), 1.65), False)
sketch9.addConstraint(Sketcher.Constraint("Block", 8))
sketch9.addConstraint(Sketcher.Constraint("Block", 12))
sketch9.addConstraint(Sketcher.Constraint("Block", 30))
sketch9.addConstraint(Sketcher.Constraint("Block", 34))
sketch9.addConstraint(Sketcher.Constraint("Coincident", 0, 2, 1, 1))
sketch9.addConstraint(Sketcher.Constraint("Coincident", 1, 2, 2, 1))
sketch9.addConstraint(Sketcher.Constraint("Coincident", 2, 2, 3, 1))
sketch9.addConstraint(Sketcher.Constraint("Coincident", 3, 2, 4, 1))
sketch9.addConstraint(Sketcher.Constraint("Coincident", 4, 2, 5, 1))
sketch9.addConstraint(Sketcher.Constraint("Coincident", 5, 2, 6, 1))
sketch9.addConstraint(Sketcher.Constraint("Coincident", 6, 2, 7, 1))
sketch9.addConstraint(Sketcher.Constraint("Coincident", 7, 2, 8, 2))
sketch9.addConstraint(Sketcher.Constraint("Coincident", 8, 1, 9, 1))
sketch9.addConstraint(Sketcher.Constraint("Coincident", 9, 2, 10, 1))
sketch9.addConstraint(Sketcher.Constraint("Coincident", 10, 2, 11, 1))
sketch9.addConstraint(Sketcher.Constraint("Coincident", 11, 2, 12, 2))
sketch9.addConstraint(Sketcher.Constraint("Coincident", 12, 1, 13, 1))
sketch9.addConstraint(Sketcher.Constraint("Coincident", 13, 2, 14, 1))
sketch9.addConstraint(Sketcher.Constraint("Coincident", 14, 2, 15, 1))
sketch9.addConstraint(Sketcher.Constraint("Coincident", 15, 2, 16, 1))
sketch9.addConstraint(Sketcher.Constraint("Coincident", 16, 2, 17, 1))
sketch9.addConstraint(Sketcher.Constraint("Coincident", 17, 2, 18, 1))
sketch9.addConstraint(Sketcher.Constraint("Coincident", 18, 2, 19, 1))
sketch9.addConstraint(Sketcher.Constraint("Coincident", 19, 2, 20, 1))
sketch9.addConstraint(Sketcher.Constraint("Coincident", 20, 2, 0, 1))
sketch9.addConstraint(Sketcher.Constraint("Coincident", 23, 2, 24, 1))
sketch9.addConstraint(Sketcher.Constraint("Coincident", 24, 2, 25, 1))
sketch9.addConstraint(Sketcher.Constraint("Coincident", 25, 2, 26, 1))
sketch9.addConstraint(Sketcher.Constraint("Coincident", 26, 2, 27, 1))
sketch9.addConstraint(Sketcher.Constraint("Coincident", 27, 2, 28, 1))
sketch9.addConstraint(Sketcher.Constraint("Coincident", 28, 2, 29, 1))
sketch9.addConstraint(Sketcher.Constraint("Coincident", 29, 2, 30, 1))
sketch9.addConstraint(Sketcher.Constraint("Coincident", 30, 2, 31, 1))
sketch9.addConstraint(Sketcher.Constraint("Coincident", 31, 2, 32, 1))
sketch9.addConstraint(Sketcher.Constraint("Coincident", 32, 2, 33, 1))
sketch9.addConstraint(Sketcher.Constraint("Coincident", 33, 2, 34, 1))
sketch9.addConstraint(Sketcher.Constraint("Coincident", 34, 2, 35, 1))
sketch9.addConstraint(Sketcher.Constraint("Coincident", 35, 2, 36, 1))
sketch9.addConstraint(Sketcher.Constraint("Coincident", 36, 2, 37, 1))
sketch9.addConstraint(Sketcher.Constraint("Coincident", 37, 2, 38, 1))
sketch9.addConstraint(Sketcher.Constraint("Coincident", 38, 2, 39, 1))
sketch9.addConstraint(Sketcher.Constraint("Coincident", 39, 2, 40, 1))
sketch9.addConstraint(Sketcher.Constraint("Coincident", 40, 2, 41, 1))
sketch9.addConstraint(Sketcher.Constraint("Coincident", 41, 2, 42, 1))
sketch9.addConstraint(Sketcher.Constraint("Coincident", 42, 2, 43, 1))
sketch9.addConstraint(Sketcher.Constraint("Coincident", 43, 2, 23, 1))
sketch9.addConstraint(Sketcher.Constraint("Horizontal", 1))
sketch9.addConstraint(Sketcher.Constraint("Vertical", 2))
sketch9.addConstraint(Sketcher.Constraint("Horizontal", 3))
sketch9.addConstraint(Sketcher.Constraint("Horizontal", 6))
sketch9.addConstraint(Sketcher.Constraint("Vertical", 9))
sketch9.addConstraint(Sketcher.Constraint("Horizontal", 10))
sketch9.addConstraint(Sketcher.Constraint("Vertical", 11))
sketch9.addConstraint(Sketcher.Constraint("Horizontal", 14))
sketch9.addConstraint(Sketcher.Constraint("Horizontal", 17))
sketch9.addConstraint(Sketcher.Constraint("Vertical", 18))
sketch9.addConstraint(Sketcher.Constraint("Horizontal", 19))
sketch9.addConstraint(Sketcher.Constraint("Vertical", 20))
sketch9.addConstraint(Sketcher.Constraint("Horizontal", 23))
sketch9.addConstraint(Sketcher.Constraint("Vertical", 24))
sketch9.addConstraint(Sketcher.Constraint("Horizontal", 25))
sketch9.addConstraint(Sketcher.Constraint("Horizontal", 28))
sketch9.addConstraint(Sketcher.Constraint("Vertical", 31))
sketch9.addConstraint(Sketcher.Constraint("Horizontal", 32))
sketch9.addConstraint(Sketcher.Constraint("Vertical", 33))
sketch9.addConstraint(Sketcher.Constraint("Horizontal", 36))
sketch9.addConstraint(Sketcher.Constraint("Horizontal", 39))
sketch9.addConstraint(Sketcher.Constraint("Vertical", 40))
sketch9.addConstraint(Sketcher.Constraint("Horizontal", 41))
sketch9.addConstraint(Sketcher.Constraint("Vertical", 43))
sketch9.addConstraint(Sketcher.Constraint("Diameter", 21, 3.3))
sketch9.addConstraint(Sketcher.Constraint("Diameter", 22, 3.3))
sketch9.addConstraint(Sketcher.Constraint("Diameter", 44, 3.3))
sketch9.addConstraint(Sketcher.Constraint("Diameter", 45, 3.3))
sketch9.addConstraint(Sketcher.Constraint("DistanceY", 2, 1, 2, 2, 8.8))
sketch9.addConstraint(Sketcher.Constraint("DistanceY", 18, 2, 18, 1, 1.5))
sketch9.addConstraint(Sketcher.Constraint("DistanceY", 20, 1, 20, 2, 21.7))
sketch9.addConstraint(Sketcher.Constraint("DistanceY", 24, 1, 24, 2, 1.5))
sketch9.addConstraint(Sketcher.Constraint("DistanceY", 40, 2, 40, 1, 8.8))
sketch9.addConstraint(Sketcher.Constraint("DistanceY", 43, 2, 43, 1, 21.7))
sketch9.addConstraint(Sketcher.Constraint("DistanceX", -1, 1, 21, 3, 5.0))
sketch9.addConstraint(Sketcher.Constraint("DistanceX", -1, 1, 22, 3, 5.0))
sketch9.addConstraint(Sketcher.Constraint("DistanceX", -1, 1, 44, 3, 37.0))
sketch9.addConstraint(Sketcher.Constraint("DistanceX", -1, 1, 45, 3, 37.0))
sketch9.addConstraint(Sketcher.Constraint("DistanceX", -1, 1, 0, 2, 11.0))
sketch9.addConstraint(Sketcher.Constraint("DistanceX", -1, 1, 19, 2, 14.0))
sketch9.addConstraint(Sketcher.Constraint("DistanceX", -1, 1, 41, 2, 31.0))
sketch9.addConstraint(Sketcher.Constraint("DistanceX", -1, 1, 42, 2, 28.0))
sketch9.addConstraint(Sketcher.Constraint("DistanceY", 21, 3, 22, 3, 32.0))
sketch9.addConstraint(Sketcher.Constraint("DistanceY", 44, 3, 22, 3, 32.0))
sketch9.addConstraint(Sketcher.Constraint("DistanceY", 44, 3, 45, 3, 32.0))
sketch9.addConstraint(Sketcher.Constraint("DistanceY", 22, 3, 0, 2, 4.0))
sketch9.addConstraint(Sketcher.Constraint("DistanceY", 4, 2, 3, 2, 4.0))
sketch9.addConstraint(Sketcher.Constraint("DistanceY", 21, 3, 20, 2, 16.0))
sketch9.addConstraint(Sketcher.Constraint("DistanceY", 37, 2, 38, 2, 4.0))
sketch9.addConstraint(Sketcher.Constraint("DistanceY", 45, 3, 40, 2, 4.0))
sketch9.addConstraint(Sketcher.Constraint("DistanceY", 44, 3, 42, 2, 16.0))
sketch9.addConstraint(Sketcher.Constraint("DistanceY", 21, 3, 15, 2, 1.319001))
sketch9.addConstraint(Sketcher.Constraint("DistanceY", 25, 2, 26, 2, 5.519001))
sketch9.addConstraint(Sketcher.Constraint("DistanceX", 1, 2, 1, 1, 4.99927))
sketch9.addConstraint(Sketcher.Constraint("DistanceX", 41, 2, 41, 1, 4.99927))
sketch9.addConstraint(Sketcher.Constraint("Distance", 15, 6.761568))
sketch9.addConstraint(Sketcher.Constraint("Distance", 27, 6.761568))
sketch9.addConstraint(Sketcher.Constraint("DistanceX", 3, 2, 3, 1, 2.159335))
sketch9.addConstraint(Sketcher.Constraint("DistanceX", 6, 1, 6, 2, 2.159335))
sketch9.addConstraint(Sketcher.Constraint("DistanceX", 14, 1, 14, 2, 1.617802))
sketch9.addConstraint(Sketcher.Constraint("DistanceX", 17, 1, 17, 2, 2.988237))
sketch9.addConstraint(Sketcher.Constraint("DistanceX", 19, 1, 19, 2, 11.631554))
sketch9.addConstraint(Sketcher.Constraint("DistanceX", 23, 1, 23, 2, 11.631554))
sketch9.addConstraint(Sketcher.Constraint("DistanceX", 25, 1, 25, 2, 2.988237))
sketch9.addConstraint(Sketcher.Constraint("DistanceX", 28, 1, 28, 2, 1.617802))
sketch9.addConstraint(Sketcher.Constraint("DistanceX", 36, 1, 36, 2, 2.159335))
sketch9.addConstraint(Sketcher.Constraint("DistanceX", 39, 2, 39, 1, 2.159335))
sketch9.addConstraint(Sketcher.Constraint("DistanceY", 9, 2, 9, 1, 3.934985))
sketch9.addConstraint(Sketcher.Constraint("DistanceY", 31, 1, 31, 2, 10.501154))
sketch9.addConstraint(Sketcher.Constraint("DistanceX", 5, 2, -1, 1, 4.75073))
sketch9.addConstraint(Sketcher.Constraint("DistanceY", -1, 1, 13, 2, 14.07195))
sketch9.addConstraint(Sketcher.Constraint("DistanceX", 14, 2, -1, 1, 5.38254))
sketch9.addConstraint(Sketcher.Constraint("DistanceX", -1, 1, 27, 2, 47.38254))
sketch9.addConstraint(Sketcher.Constraint("DistanceY", -1, 1, 27, 2, 14.07195))
sketch9.addConstraint(Sketcher.Constraint("DistanceX", -1, 1, 36, 2, 46.75073))
sketch9.addConstraint(Sketcher.Constraint("DistanceX", 4, 2, 3, 2, 4.142121))
sketch9.addConstraint(Sketcher.Constraint("DistanceY", 5, 2, 4, 2, 4.297319))
sketch9.addConstraint(Sketcher.Constraint("DistanceX", 14, 2, 15, 2, 2.532928))
sketch9.addConstraint(Sketcher.Constraint("DistanceY", 45, 3, 35, 2, 4.502681))
sketch9.addConstraint(Sketcher.Constraint("DistanceX", 37, 2, 35, 2, 2.290669))
pad3 = body2.newObject("PartDesign::Pad", "Pad002")
pad3.Profile = sketch9
pad3.Length = 4.1

doc.recompute()
